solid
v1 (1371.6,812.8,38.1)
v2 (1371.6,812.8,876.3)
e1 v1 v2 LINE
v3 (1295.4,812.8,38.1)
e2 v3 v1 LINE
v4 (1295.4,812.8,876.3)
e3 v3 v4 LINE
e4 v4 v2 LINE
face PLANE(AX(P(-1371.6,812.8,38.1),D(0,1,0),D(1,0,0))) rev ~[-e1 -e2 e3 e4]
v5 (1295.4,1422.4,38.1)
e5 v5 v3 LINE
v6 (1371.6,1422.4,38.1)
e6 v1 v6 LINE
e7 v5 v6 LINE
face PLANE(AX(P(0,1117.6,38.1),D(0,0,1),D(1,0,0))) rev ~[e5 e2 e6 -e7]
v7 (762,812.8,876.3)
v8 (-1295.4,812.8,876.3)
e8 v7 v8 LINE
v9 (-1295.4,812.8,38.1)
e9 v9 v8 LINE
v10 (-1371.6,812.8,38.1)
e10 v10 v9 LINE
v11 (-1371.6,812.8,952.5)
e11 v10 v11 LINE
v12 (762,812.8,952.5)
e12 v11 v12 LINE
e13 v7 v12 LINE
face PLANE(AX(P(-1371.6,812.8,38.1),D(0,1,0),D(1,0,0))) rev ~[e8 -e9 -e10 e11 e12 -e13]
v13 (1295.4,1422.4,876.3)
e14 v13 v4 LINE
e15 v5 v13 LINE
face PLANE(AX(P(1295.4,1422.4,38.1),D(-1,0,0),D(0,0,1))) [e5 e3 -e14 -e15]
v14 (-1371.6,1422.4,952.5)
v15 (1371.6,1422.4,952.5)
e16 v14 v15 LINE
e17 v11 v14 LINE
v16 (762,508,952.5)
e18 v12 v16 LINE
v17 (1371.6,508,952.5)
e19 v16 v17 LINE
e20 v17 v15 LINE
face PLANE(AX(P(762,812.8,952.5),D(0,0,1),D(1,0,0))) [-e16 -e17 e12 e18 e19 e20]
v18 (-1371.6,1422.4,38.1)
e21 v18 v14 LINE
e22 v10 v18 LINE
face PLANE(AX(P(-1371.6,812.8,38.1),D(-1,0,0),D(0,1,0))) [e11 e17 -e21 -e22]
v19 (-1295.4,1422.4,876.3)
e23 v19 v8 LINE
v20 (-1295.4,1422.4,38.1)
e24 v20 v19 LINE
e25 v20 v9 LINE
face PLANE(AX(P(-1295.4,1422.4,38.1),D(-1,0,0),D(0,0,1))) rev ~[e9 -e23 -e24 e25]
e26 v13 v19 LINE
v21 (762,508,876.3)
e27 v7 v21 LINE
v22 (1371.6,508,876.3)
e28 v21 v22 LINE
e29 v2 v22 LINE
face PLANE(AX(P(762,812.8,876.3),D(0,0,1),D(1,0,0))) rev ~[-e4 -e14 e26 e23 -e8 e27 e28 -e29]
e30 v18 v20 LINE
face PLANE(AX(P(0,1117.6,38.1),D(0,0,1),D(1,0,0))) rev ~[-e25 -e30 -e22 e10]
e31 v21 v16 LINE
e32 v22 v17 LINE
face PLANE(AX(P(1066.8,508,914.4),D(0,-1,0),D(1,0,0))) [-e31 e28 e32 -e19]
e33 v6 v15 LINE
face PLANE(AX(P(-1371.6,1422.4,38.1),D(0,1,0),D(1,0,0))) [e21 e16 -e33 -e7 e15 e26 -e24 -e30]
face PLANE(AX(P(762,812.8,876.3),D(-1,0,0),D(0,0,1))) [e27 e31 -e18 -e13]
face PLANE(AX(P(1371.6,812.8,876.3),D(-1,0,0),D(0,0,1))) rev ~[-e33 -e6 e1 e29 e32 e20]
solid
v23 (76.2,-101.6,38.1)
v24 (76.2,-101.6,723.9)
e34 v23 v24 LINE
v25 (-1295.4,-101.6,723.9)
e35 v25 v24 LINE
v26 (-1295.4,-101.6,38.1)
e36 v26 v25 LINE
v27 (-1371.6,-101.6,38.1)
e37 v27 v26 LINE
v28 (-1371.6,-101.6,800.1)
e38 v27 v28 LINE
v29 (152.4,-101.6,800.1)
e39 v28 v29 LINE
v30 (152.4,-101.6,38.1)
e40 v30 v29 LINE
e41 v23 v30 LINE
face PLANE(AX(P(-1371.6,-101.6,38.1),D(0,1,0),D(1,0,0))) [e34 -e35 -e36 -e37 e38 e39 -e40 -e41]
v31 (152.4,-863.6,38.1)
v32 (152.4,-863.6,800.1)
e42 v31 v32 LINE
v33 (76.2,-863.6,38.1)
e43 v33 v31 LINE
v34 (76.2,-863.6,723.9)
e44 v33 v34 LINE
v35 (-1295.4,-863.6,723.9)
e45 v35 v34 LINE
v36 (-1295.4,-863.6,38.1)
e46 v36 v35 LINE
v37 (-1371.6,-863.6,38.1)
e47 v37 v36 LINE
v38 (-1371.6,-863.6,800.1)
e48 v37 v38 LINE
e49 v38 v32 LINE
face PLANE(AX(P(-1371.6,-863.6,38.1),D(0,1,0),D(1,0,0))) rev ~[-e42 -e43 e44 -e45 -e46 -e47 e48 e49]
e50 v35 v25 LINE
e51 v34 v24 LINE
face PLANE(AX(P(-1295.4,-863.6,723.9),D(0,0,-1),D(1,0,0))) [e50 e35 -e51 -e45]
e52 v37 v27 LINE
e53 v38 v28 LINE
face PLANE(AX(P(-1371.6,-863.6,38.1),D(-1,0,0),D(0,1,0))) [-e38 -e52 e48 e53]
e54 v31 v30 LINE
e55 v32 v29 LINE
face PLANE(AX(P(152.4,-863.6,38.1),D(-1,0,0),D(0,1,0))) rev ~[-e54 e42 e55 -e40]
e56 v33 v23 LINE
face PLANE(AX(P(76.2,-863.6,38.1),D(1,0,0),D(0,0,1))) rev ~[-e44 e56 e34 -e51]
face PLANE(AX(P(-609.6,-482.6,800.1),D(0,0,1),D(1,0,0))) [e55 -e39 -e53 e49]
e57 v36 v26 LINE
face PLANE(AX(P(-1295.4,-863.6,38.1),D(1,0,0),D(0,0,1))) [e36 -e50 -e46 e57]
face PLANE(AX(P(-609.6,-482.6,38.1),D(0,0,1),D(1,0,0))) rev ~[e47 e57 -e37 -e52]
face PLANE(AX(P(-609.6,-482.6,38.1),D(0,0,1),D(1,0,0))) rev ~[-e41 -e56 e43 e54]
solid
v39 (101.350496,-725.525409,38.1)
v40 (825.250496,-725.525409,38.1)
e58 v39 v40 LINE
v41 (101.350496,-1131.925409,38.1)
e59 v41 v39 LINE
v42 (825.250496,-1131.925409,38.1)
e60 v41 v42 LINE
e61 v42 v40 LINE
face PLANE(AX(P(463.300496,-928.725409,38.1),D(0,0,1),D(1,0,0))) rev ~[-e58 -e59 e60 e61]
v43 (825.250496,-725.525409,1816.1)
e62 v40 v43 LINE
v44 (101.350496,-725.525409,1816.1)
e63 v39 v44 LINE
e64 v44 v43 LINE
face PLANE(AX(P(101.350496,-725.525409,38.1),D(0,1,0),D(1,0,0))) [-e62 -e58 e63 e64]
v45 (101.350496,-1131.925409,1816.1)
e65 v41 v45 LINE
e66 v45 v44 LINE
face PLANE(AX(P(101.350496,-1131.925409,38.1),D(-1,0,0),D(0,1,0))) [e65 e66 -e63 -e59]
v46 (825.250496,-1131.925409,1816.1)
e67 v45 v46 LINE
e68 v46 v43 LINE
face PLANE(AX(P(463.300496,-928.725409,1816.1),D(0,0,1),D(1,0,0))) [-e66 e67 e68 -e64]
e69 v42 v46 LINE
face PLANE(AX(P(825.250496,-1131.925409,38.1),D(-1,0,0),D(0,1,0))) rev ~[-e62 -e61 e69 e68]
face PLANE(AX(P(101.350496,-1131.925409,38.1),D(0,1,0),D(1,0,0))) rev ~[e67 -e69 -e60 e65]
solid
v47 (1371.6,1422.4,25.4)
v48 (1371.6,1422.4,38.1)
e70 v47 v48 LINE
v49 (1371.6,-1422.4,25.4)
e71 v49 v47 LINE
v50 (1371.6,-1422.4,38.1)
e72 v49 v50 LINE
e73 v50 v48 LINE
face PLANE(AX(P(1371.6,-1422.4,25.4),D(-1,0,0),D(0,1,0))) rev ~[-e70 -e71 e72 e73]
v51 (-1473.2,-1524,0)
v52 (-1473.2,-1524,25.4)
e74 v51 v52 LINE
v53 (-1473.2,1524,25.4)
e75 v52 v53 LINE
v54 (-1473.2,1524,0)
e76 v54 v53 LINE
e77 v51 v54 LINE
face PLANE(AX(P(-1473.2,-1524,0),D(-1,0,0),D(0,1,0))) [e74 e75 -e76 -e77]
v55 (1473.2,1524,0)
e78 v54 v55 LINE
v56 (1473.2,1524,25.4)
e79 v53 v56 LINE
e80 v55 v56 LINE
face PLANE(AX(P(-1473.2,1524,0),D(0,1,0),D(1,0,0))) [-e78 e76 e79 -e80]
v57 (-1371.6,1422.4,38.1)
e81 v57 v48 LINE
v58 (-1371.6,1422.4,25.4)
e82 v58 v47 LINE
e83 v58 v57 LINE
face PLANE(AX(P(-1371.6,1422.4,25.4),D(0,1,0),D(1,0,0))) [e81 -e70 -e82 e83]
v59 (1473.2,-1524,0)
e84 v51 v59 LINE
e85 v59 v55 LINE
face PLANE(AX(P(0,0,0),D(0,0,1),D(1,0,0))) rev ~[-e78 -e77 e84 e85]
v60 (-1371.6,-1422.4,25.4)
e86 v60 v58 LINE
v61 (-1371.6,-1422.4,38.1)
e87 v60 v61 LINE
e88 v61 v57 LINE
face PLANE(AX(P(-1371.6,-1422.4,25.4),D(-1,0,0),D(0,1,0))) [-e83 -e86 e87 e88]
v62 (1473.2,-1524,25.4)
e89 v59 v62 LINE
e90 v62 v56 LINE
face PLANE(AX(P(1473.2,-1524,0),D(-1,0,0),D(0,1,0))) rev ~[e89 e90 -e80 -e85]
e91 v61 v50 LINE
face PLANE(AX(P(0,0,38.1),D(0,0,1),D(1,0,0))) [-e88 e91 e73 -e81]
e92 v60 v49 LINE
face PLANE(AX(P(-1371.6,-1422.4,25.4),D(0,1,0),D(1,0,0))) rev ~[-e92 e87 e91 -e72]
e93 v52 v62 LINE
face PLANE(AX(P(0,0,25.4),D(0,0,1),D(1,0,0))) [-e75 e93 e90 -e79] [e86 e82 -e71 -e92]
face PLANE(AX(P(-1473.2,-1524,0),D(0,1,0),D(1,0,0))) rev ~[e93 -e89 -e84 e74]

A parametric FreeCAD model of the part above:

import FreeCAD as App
import Part
import Sketcher
Q = App.Units.Quantity


def add_polygon(sketch, points):
    """Adds a closed chain of lines whose ends are joined by coincident constraints."""
    first, n = sketch.GeometryCount, len(points)
    for a, b in zip(points, points[1:] + points[:1]):
        sketch.addGeometry(Part.LineSegment(App.Vector(*a, 0), App.Vector(*b, 0)), False)
    for i in range(n):
        sketch.addConstraint(Sketcher.Constraint("Coincident", first + i, 2, first + (i + 1) % n, 1))

doc = App.newDocument("Part")
body = doc.addObject("PartDesign::Body", "Body")

# Sketch on XY plane
sketch1 = body.newObject("Sketcher::SketchObject", "Sketch")
sketch1.AttachmentSupport = (doc.getObject("XY_Plane"), [""])
sketch1.MapMode = "FlatFace"
add_polygon(sketch1, [(-1473, 1524), (-1473, -1524), (1473, -1524), (1473, 1524)])  # lines 0-3
sketch1.addConstraint([
    Sketcher.Constraint("Vertical", 0),
    Sketcher.Constraint("Horizontal", 1),
    Sketcher.Constraint("Vertical", 2),
    Sketcher.Constraint("Horizontal", 3),
    Sketcher.Constraint("Symmetric", 0, 2, 2, 2, -1, 1),
    Sketcher.Constraint("DistanceX", 1, 1, 1, 2, Q("116 in")),
    Sketcher.Constraint("DistanceY", 0, 2, 0, 1, Q("120 in")),
])
pad1 = body.newObject("PartDesign::Pad", "Pad")
pad1.Profile = sketch1
pad1.Length = Q("1 in")

# Sketch on XY plane
sketch2 = body.newObject("Sketcher::SketchObject", "Sketch001")
sketch2.AttachmentSupport = (doc.getObject("XY_Plane"), [""])
sketch2.MapMode = "FlatFace"
sketch2.AttachmentOffset = App.Placement(App.Vector(0, 0, 1 * 25.4), App.Rotation())
add_polygon(sketch2, [(-1372, 1422), (-1372, -1422), (1372, -1422), (1372, 1422)])  # lines 0-3
sketch2.addConstraint([
    Sketcher.Constraint("Vertical", 0),
    Sketcher.Constraint("Horizontal", 1),
    Sketcher.Constraint("Vertical", 2),
    Sketcher.Constraint("Horizontal", 3),
    Sketcher.Constraint("Symmetric", 0, 2, 2, 2, -1, 1),
    Sketcher.Constraint("DistanceX", 1, 1, 1, 2, Q("108 in")),
    Sketcher.Constraint("DistanceY", 0, 2, 0, 1, Q("112 in")),
])
pad2 = body.newObject("PartDesign::Pad", "Pad001")
pad2.Profile = sketch2
pad2.Length = Q("0.5 in")
body2 = doc.addObject("PartDesign::Body", "Body001")

# Sketch on XY plane
sketch3 = body2.newObject("Sketcher::SketchObject", "Sketch002")
sketch3.AttachmentSupport = (doc.getObject("XY_Plane001"), [""])
sketch3.MapMode = "FlatFace"
sketch3.AttachmentOffset = App.Placement(App.Vector(0, 0, 1.5 * 25.4), App.Rotation())
add_polygon(sketch3, [(-1372, -102), (-1372, -864), (152, -864), (152, -102)])  # lines 0-3
sketch3.addConstraint([
    Sketcher.Constraint("Vertical", 0),
    Sketcher.Constraint("Horizontal", 1),
    Sketcher.Constraint("Vertical", 2),
    Sketcher.Constraint("Horizontal", 3),
    Sketcher.Constraint("DistanceX", 1, 1, 1, 2, Q("60 in")),
    Sketcher.Constraint("DistanceY", 0, 2, 0, 1, Q("30 in")),
    Sketcher.Constraint("DistanceX", 0, 2, -1, 1, Q("54 in")),
    Sketcher.Constraint("DistanceY", 0, 2, -1, 1, Q("34 in")),
])
pad3 = body2.newObject("PartDesign::Pad", "Pad002")
pad3.Profile = sketch3
pad3.Length = Q("30 in")

# Sketch on XZ plane
sketch4 = body2.newObject("Sketcher::SketchObject", "Sketch003")
sketch4.AttachmentSupport = (doc.getObject("XZ_Plane001"), [""])
sketch4.MapMode = "FlatFace"
sketch4.AttachmentOffset = App.Placement(App.Vector(0, 0, 34 * 25.4), App.Rotation())
add_polygon(sketch4, [(-1295, 724), (-1295, 38), (76, 38), (76, 724)])  # lines 0-3
sketch4.addConstraint([
    Sketcher.Constraint("Vertical", 0),
    Sketcher.Constraint("Horizontal", 1),
    Sketcher.Constraint("Vertical", 2),
    Sketcher.Constraint("Horizontal", 3),
    Sketcher.Constraint("DistanceX", 1, 1, 1, 2, Q("54 in")),
    Sketcher.Constraint("DistanceY", 0, 2, 0, 1, Q("27 in")),
    Sketcher.Constraint("DistanceX", 0, 2, -1, 1, Q("51 in")),
    Sketcher.Constraint("DistanceY", -1, 1, 0, 2, Q("1.5 in")),
])
pocket1 = body2.newObject("PartDesign::Pocket", "Pocket")
pocket1.Profile = sketch4
pocket1.Type = "ThroughAll"
body3 = doc.addObject("PartDesign::Body", "Body002")

# Sketch on XY plane
sketch5 = body3.newObject("Sketcher::SketchObject", "Sketch004")
sketch5.AttachmentSupport = (doc.getObject("XY_Plane002"), [""])
sketch5.MapMode = "FlatFace"
sketch5.AttachmentOffset = App.Placement(App.Vector(0, 0, 1.5 * 25.4), App.Rotation())
add_polygon(sketch5, [(-1372, 1422), (-1372, 813), (1372, 813), (1372, 1422)])  # lines 0-3
sketch5.addConstraint([
    Sketcher.Constraint("Vertical", 0),
    Sketcher.Constraint("Horizontal", 1),
    Sketcher.Constraint("Vertical", 2),
    Sketcher.Constraint("Horizontal", 3),
    Sketcher.Constraint("DistanceX", 1, 1, 1, 2, Q("108 in")),
    Sketcher.Constraint("DistanceY", 0, 2, 0, 1, Q("24 in")),
    Sketcher.Constraint("DistanceX", 0, 2, -1, 1, Q("54 in")),
    Sketcher.Constraint("DistanceY", -1, 1, 0, 2, Q("32 in")),
])
pad4 = body3.newObject("PartDesign::Pad", "Pad003")
pad4.Profile = sketch5
pad4.Length = Q("36 in")

# Sketch on XZ plane
sketch6 = body3.newObject("Sketcher::SketchObject", "Sketch005")
sketch6.AttachmentSupport = (doc.getObject("XZ_Plane002"), [""])
sketch6.MapMode = "FlatFace"
sketch6.AttachmentOffset = App.Placement(App.Vector(0, 0, -56 * 25.4), App.Rotation())
add_polygon(sketch6, [(1295, 876), (1295, 38), (-1295, 38), (-1295, 876)])  # lines 0-3
sketch6.addConstraint([
    Sketcher.Constraint("Vertical", 0),
    Sketcher.Constraint("Horizontal", 1),
    Sketcher.Constraint("Vertical", 2),
    Sketcher.Constraint("Horizontal", 3),
    Sketcher.Constraint("DistanceX", 1, 2, 1, 1, Q("102 in")),
    Sketcher.Constraint("DistanceY", 0, 2, 0, 1, Q("33 in")),
    Sketcher.Constraint("DistanceX", -1, 1, 0, 2, Q("51 in")),
    Sketcher.Constraint("DistanceY", -1, 1, 0, 2, Q("1.5 in")),
])
pocket2 = body3.newObject("PartDesign::Pocket", "Pocket001")
pocket2.Profile = sketch6
pocket2.Type = "ThroughAll"
pocket2.Reversed = True

# Sketch on XZ plane
sketch7 = body3.newObject("Sketcher::SketchObject", "Sketch006")
sketch7.AttachmentSupport = (doc.getObject("XZ_Plane002"), [""])
sketch7.MapMode = "FlatFace"
sketch7.AttachmentOffset = App.Placement(App.Vector(0, 0, -32 * 25.4), App.Rotation())
add_polygon(sketch7, [(762, 952), (762, 876), (1372, 876), (1372, 952)])  # lines 0-3
sketch7.addConstraint([
    Sketcher.Constraint("Vertical", 0),
    Sketcher.Constraint("Horizontal", 1),
    Sketcher.Constraint("Vertical", 2),
    Sketcher.Constraint("Horizontal", 3),
    Sketcher.Constraint("DistanceX", 1, 1, 1, 2, Q("24 in")),
    Sketcher.Constraint("DistanceY", 0, 2, 0, 1, Q("3 in")),
    Sketcher.Constraint("DistanceX", -1, 1, 0, 2, Q("30 in")),
    Sketcher.Constraint("DistanceY", -1, 1, 0, 2, Q("34.5 in")),
])
pad5 = body3.newObject("PartDesign::Pad", "Pad004")
pad5.Profile = sketch7
pad5.Length = Q("12 in")
body4 = doc.addObject("PartDesign::Body", "Body003")

# Sketch on XY plane
sketch8 = body4.newObject("Sketcher::SketchObject", "Sketch007")
sketch8.AttachmentSupport = (doc.getObject("XY_Plane003"), [""])
sketch8.MapMode = "FlatFace"
sketch8.AttachmentOffset = App.Placement(App.Vector(0, 0, 1.5 * 25.4), App.Rotation())
add_polygon(sketch8, [(101, -726), (101, -1132), (825, -1132), (825, -726)])  # lines 0-3
sketch8.addConstraint([
    Sketcher.Constraint("Vertical", 0),
    Sketcher.Constraint("Horizontal", 1),
    Sketcher.Constraint("Vertical", 2),
    Sketcher.Constraint("Horizontal", 3),
    Sketcher.Constraint("DistanceY", 0, 2, 0, 1, Q("16 in")),
    Sketcher.Constraint("DistanceX", 1, 1, 1, 2, Q("28.5 in")),
    Sketcher.Constraint("DistanceY", 0, 2, -1, 1, Q("1131.925409 mm")),
    Sketcher.Constraint("DistanceX", -1, 1, 0, 2, Q("101.350496 mm")),
])
pad6 = body4.newObject("PartDesign::Pad", "Pad005")
pad6.Profile = sketch8
pad6.Length = Q("70 in")

doc.recompute()
